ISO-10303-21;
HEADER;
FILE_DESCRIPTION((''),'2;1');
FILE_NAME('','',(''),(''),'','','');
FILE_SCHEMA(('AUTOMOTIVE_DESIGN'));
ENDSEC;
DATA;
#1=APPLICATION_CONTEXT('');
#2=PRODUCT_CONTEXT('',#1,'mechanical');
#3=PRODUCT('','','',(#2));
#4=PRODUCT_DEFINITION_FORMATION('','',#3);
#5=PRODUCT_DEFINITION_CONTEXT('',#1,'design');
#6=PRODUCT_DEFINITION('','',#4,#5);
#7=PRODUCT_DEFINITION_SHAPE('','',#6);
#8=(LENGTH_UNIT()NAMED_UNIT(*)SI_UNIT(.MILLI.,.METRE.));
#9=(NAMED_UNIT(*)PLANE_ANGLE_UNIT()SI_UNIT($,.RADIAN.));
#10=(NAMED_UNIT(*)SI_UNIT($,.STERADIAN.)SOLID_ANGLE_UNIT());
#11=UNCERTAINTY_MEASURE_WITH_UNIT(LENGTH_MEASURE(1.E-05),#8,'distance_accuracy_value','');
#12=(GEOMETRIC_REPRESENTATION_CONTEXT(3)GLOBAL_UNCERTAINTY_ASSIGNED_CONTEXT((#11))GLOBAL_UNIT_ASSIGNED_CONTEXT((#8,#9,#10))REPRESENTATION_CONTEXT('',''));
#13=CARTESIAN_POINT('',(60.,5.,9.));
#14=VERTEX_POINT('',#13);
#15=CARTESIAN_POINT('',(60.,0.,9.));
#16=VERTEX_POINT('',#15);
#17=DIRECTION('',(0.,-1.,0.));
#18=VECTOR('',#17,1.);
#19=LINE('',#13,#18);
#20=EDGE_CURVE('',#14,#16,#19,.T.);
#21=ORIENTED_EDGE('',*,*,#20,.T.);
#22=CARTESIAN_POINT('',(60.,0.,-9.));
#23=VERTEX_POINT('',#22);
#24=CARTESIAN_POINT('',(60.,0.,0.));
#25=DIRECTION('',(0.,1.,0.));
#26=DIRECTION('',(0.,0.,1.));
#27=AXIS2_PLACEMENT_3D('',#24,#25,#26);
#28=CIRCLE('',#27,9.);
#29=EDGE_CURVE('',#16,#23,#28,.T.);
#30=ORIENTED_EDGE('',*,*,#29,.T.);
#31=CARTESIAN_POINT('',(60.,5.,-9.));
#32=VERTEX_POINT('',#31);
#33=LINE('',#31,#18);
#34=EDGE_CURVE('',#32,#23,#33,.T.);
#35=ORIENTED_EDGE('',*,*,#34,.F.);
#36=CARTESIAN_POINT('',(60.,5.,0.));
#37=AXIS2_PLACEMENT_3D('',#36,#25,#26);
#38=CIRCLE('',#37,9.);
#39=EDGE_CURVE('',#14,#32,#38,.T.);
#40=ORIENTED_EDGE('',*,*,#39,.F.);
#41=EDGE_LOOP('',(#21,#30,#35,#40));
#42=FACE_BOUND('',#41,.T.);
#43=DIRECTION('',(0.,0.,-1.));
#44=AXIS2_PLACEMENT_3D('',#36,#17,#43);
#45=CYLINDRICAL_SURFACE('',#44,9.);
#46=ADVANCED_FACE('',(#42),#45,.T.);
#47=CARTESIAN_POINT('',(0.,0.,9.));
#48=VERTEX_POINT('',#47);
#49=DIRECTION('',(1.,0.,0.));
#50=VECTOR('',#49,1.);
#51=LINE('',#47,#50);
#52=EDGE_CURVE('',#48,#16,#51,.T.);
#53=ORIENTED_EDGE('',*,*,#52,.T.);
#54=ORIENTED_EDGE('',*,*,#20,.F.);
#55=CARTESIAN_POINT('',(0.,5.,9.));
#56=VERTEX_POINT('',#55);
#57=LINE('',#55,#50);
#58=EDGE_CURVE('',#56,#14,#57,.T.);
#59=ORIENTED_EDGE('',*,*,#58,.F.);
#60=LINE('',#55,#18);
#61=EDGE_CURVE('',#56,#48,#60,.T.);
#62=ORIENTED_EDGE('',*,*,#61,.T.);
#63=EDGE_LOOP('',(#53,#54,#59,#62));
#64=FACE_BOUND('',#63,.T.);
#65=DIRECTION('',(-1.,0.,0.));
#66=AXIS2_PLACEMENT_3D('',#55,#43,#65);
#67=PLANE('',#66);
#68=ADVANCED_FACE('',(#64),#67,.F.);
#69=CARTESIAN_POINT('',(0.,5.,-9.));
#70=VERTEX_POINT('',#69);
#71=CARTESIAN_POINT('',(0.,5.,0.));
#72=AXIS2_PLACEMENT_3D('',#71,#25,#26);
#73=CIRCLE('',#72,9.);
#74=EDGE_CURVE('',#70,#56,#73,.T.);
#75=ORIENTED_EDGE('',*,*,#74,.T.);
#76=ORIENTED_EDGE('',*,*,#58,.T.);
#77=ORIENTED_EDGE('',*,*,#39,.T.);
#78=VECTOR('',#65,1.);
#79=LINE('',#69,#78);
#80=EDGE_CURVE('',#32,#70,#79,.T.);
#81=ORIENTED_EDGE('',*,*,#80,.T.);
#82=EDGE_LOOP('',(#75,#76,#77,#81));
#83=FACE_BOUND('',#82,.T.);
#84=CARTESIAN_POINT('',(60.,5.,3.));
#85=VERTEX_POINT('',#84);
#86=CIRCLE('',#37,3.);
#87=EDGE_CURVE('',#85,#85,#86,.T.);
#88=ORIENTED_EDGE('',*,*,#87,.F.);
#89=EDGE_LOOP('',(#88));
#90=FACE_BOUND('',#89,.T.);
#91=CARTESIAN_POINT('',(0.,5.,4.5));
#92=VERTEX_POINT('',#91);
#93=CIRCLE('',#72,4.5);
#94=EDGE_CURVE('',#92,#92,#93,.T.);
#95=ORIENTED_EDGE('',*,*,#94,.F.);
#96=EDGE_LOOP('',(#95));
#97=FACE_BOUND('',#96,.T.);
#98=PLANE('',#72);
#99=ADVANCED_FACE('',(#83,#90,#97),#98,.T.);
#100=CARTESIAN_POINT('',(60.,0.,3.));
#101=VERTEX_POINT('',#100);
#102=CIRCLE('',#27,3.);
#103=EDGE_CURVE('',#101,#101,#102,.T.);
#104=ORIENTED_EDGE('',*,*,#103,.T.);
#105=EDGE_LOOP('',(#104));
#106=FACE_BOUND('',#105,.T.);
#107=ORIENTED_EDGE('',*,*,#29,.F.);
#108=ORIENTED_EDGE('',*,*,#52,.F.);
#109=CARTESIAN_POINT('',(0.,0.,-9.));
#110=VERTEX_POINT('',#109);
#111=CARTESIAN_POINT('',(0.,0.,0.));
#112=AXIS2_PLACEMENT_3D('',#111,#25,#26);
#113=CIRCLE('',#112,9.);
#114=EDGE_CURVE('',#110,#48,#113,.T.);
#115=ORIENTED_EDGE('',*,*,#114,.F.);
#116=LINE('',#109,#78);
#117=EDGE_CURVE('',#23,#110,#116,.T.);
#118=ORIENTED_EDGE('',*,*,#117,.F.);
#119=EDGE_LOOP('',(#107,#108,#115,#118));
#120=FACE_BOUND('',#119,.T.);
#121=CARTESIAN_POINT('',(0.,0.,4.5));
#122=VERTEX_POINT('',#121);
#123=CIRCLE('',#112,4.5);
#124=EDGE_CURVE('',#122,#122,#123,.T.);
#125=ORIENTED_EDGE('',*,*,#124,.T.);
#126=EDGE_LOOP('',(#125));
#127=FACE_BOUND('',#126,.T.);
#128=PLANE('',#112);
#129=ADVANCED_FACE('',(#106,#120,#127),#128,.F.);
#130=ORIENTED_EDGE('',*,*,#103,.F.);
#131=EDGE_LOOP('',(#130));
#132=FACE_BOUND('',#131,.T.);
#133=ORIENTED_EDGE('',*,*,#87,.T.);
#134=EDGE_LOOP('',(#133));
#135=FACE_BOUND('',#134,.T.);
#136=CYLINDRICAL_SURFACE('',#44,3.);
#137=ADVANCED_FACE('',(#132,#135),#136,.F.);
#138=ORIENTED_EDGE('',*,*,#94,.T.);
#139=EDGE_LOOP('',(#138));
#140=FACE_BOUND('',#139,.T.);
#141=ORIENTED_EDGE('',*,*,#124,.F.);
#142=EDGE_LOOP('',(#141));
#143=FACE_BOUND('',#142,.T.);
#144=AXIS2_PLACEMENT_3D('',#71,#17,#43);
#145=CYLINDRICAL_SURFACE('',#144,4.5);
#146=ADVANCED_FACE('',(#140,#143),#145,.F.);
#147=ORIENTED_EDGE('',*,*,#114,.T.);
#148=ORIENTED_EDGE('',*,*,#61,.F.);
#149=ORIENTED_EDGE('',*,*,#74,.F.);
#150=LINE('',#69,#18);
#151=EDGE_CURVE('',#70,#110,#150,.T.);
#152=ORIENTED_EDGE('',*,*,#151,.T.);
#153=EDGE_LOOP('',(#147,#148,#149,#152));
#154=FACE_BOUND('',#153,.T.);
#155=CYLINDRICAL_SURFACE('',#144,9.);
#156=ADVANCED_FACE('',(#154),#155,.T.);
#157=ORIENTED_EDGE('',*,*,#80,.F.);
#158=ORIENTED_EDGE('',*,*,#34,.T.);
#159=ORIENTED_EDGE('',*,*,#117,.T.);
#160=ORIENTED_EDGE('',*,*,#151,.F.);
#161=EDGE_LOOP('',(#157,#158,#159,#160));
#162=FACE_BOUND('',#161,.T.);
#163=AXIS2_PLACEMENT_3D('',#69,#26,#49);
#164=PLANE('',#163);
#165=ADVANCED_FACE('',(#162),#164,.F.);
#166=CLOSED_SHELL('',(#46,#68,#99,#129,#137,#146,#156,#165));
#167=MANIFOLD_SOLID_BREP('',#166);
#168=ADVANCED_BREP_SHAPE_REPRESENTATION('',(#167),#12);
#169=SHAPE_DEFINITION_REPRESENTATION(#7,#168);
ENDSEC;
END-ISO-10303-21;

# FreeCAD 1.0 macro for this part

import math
import FreeCAD as App
import Part
import Sketcher

V = App.Vector
Q = App.Units.Quantity

doc = App.newDocument("Part")
body = doc.addObject("PartDesign::Body", "Body")

sketch1 = body.newObject("Sketcher::SketchObject", "Sketch")
sketch1.AttachmentSupport = (doc.getObject("XZ_Plane"), [""])
sketch1.MapMode = "FlatFace"
sketch1.addGeometry(Part.LineSegment(V(60, -9, 0), V(0, -9, 0)), False)
sketch1.addGeometry(Part.ArcOfCircle(Part.Circle(V(0, 0, 0), V(0, 0, 1), 9), math.radians(90), math.radians(270)), False)
sketch1.addGeometry(Part.LineSegment(V(0, 9, 0), V(60, 9, 0)), False)
sketch1.addGeometry(Part.ArcOfCircle(Part.Circle(V(60, 0, 0), V(0, 0, 1), 9), math.radians(-90), math.radians(90)), False)
sketch1.addGeometry(Part.Circle(V(60, 0, 0), V(0, 0, 1), 3), False)
sketch1.addGeometry(Part.Circle(V(0, 0, 0), V(0, 0, 1), 4.5), False)
sketch1.addConstraint(Sketcher.Constraint("Tangent", 0, 2, 1, 2))
sketch1.addConstraint(Sketcher.Constraint("Tangent", 1, 1, 2, 1))
sketch1.addConstraint(Sketcher.Constraint("Tangent", 2, 2, 3, 2))
sketch1.addConstraint(Sketcher.Constraint("Tangent", 3, 1, 0, 1))
sketch1.addConstraint(Sketcher.Constraint("Horizontal", 0))
sketch1.addConstraint(Sketcher.Constraint("Horizontal", 2))
sketch1.addConstraint(Sketcher.Constraint("Coincident", 1, 3, -1, 1))
sketch1.addConstraint(Sketcher.Constraint("Coincident", 5, 3, -1, 1))
sketch1.addConstraint(Sketcher.Constraint("Coincident", 4, 3, 3, 3))
sketch1.addConstraint(Sketcher.Constraint("Diameter", 4, Q("6 mm")))
sketch1.addConstraint(Sketcher.Constraint("Diameter", 5, Q("9 mm")))
sketch1.addConstraint(Sketcher.Constraint("Radius", 1, Q("9 mm")))
sketch1.addConstraint(Sketcher.Constraint("DistanceX", 0, 2, 0, 1, Q("60 mm")))
pad1 = body.newObject("PartDesign::Pad", "Pad")
pad1.Profile = sketch1
pad1.Length = 5
pad1.Reversed = True

doc.recompute()
